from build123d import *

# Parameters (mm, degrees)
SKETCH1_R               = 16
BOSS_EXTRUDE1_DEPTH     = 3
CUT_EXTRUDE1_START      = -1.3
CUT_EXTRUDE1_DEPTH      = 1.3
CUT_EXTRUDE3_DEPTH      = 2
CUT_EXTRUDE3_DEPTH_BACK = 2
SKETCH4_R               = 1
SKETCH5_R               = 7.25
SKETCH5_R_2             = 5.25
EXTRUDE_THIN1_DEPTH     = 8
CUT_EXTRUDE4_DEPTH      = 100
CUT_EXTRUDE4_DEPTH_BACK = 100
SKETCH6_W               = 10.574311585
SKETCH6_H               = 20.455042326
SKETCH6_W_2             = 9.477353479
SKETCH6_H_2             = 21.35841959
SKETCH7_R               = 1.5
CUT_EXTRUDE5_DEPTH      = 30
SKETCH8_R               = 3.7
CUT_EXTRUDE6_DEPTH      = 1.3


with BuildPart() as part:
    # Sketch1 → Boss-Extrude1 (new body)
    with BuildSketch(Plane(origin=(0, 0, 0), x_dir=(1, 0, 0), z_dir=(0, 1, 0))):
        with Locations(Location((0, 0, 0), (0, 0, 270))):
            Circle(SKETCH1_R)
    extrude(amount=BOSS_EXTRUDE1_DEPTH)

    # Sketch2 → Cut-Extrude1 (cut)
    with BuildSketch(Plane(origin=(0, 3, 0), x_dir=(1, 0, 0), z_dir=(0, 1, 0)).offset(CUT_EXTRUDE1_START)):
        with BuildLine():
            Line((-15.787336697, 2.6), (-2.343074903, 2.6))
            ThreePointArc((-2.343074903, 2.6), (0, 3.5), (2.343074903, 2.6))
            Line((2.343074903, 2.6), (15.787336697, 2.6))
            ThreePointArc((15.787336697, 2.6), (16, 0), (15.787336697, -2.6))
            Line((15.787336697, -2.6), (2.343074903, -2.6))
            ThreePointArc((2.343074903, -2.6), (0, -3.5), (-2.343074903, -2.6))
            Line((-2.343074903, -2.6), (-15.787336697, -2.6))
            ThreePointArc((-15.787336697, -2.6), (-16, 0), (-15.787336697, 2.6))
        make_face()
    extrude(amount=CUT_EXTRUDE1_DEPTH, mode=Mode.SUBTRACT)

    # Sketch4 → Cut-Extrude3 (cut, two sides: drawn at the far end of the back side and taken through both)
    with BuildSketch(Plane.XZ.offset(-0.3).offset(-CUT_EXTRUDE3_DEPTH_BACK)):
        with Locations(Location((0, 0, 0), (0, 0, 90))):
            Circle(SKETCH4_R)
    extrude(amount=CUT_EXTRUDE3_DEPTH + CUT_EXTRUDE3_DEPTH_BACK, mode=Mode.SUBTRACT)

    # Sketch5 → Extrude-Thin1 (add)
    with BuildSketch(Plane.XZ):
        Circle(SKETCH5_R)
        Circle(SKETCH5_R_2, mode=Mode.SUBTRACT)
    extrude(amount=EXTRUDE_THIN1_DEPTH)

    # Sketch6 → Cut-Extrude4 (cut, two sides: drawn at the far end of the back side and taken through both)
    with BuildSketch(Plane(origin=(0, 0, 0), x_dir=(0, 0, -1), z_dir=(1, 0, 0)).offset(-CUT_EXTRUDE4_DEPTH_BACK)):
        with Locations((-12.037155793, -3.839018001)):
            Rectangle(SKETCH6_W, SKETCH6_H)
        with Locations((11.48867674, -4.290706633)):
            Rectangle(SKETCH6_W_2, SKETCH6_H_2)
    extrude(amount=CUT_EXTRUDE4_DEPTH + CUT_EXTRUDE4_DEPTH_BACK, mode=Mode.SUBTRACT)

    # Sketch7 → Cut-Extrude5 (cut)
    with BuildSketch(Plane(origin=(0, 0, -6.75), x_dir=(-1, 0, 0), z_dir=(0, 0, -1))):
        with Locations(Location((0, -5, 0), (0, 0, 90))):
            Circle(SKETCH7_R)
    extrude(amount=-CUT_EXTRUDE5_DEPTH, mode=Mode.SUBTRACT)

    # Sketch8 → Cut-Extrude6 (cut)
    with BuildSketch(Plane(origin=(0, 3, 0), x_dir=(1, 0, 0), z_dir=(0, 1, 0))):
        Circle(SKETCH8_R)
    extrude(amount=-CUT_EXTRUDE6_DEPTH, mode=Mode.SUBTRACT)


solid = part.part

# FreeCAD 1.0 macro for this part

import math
import FreeCAD as App
import Part
import Sketcher


def add_polygon(sketch, points):
    """Adds a closed chain of lines whose ends are joined by coincident constraints."""
    first, n = sketch.GeometryCount, len(points)
    for a, b in zip(points, points[1:] + points[:1]):
        sketch.addGeometry(Part.LineSegment(App.Vector(*a, 0), App.Vector(*b, 0)), False)
    for i in range(n):
        sketch.addConstraint(Sketcher.Constraint("Coincident", first + i, 2, first + (i + 1) % n, 1))

doc = App.newDocument("Part")
body = doc.addObject("PartDesign::Body", "Body")

# Sketch on XZ plane
sketch1 = body.newObject("Sketcher::SketchObject", "Sketch")
sketch1.AttachmentSupport = (doc.getObject("XZ_Plane"), [""])
sketch1.MapMode = "FlatFace"
sketch1.addGeometry(Part.Circle(App.Vector(0, 0, 0), App.Vector(0, 0, 1), 16), False)
sketch1.addConstraint(Sketcher.Constraint("Coincident", 0, 3, -1, 1))
sketch1.addConstraint(Sketcher.Constraint("Diameter", 0, 32.0))
pad1 = body.newObject("PartDesign::Pad", "Pad")
pad1.Profile = sketch1
pad1.Length = 3
pad1.Reversed = True

# Sketch on XZ plane
sketch2 = body.newObject("Sketcher::SketchObject", "Sketch001")
sketch2.AttachmentSupport = (doc.getObject("XZ_Plane"), [""])
sketch2.MapMode = "FlatFace"
sketch2.AttachmentOffset = App.Placement(App.Vector(0, 0, -1.7), App.Rotation())
sketch2.addGeometry(Part.LineSegment(App.Vector(-2.3, -2.6, 0), App.Vector(-15.8, -2.6, 0)), False)
sketch2.addGeometry(Part.ArcOfCircle(Part.Circle(App.Vector(0, 0, 0), App.Vector(0, 0, 1), 16), math.radians(170.65), math.radians(189.35)), False)
sketch2.addGeometry(Part.LineSegment(App.Vector(-15.8, 2.6, 0), App.Vector(-2.3, 2.6, 0)), False)
sketch2.addGeometry(Part.ArcOfCircle(Part.Circle(App.Vector(0, 0, 0), App.Vector(0, 0, 1), 3.5), math.radians(48), math.radians(132)), False)
sketch2.addGeometry(Part.LineSegment(App.Vector(2.3, 2.6, 0), App.Vector(15.8, 2.6, 0)), False)
sketch2.addGeometry(Part.ArcOfCircle(Part.Circle(App.Vector(0, 0, 0), App.Vector(0, 0, 1), 16), math.radians(-9.35), math.radians(9.35)), False)
sketch2.addGeometry(Part.LineSegment(App.Vector(15.8, -2.6, 0), App.Vector(2.3, -2.6, 0)), False)
sketch2.addGeometry(Part.ArcOfCircle(Part.Circle(App.Vector(0, 0, 0), App.Vector(0, 0, 1), 3.5), math.radians(-132), math.radians(-48)), False)
sketch2.addConstraint(Sketcher.Constraint("Coincident", 0, 2, 1, 2))
sketch2.addConstraint(Sketcher.Constraint("Coincident", 1, 1, 2, 1))
sketch2.addConstraint(Sketcher.Constraint("Coincident", 2, 2, 3, 2))
sketch2.addConstraint(Sketcher.Constraint("Coincident", 3, 1, 4, 1))
sketch2.addConstraint(Sketcher.Constraint("Coincident", 4, 2, 5, 2))
sketch2.addConstraint(Sketcher.Constraint("Coincident", 5, 1, 6, 1))
sketch2.addConstraint(Sketcher.Constraint("Coincident", 6, 2, 7, 2))
sketch2.addConstraint(Sketcher.Constraint("Coincident", 7, 1, 0, 1))
sketch2.addConstraint(Sketcher.Constraint("Horizontal", 0))
sketch2.addConstraint(Sketcher.Constraint("Horizontal", 2))
sketch2.addConstraint(Sketcher.Constraint("Horizontal", 4))
sketch2.addConstraint(Sketcher.Constraint("Horizontal", 6))
sketch2.addConstraint(Sketcher.Constraint("Coincident", 1, 3, -1, 1))
sketch2.addConstraint(Sketcher.Constraint("Coincident", 3, 3, -1, 1))
sketch2.addConstraint(Sketcher.Constraint("Coincident", 5, 3, -1, 1))
sketch2.addConstraint(Sketcher.Constraint("Coincident", 7, 3, -1, 1))
sketch2.addConstraint(Sketcher.Constraint("Equal", 1, 5))
sketch2.addConstraint(Sketcher.Constraint("Equal", 3, 7))
sketch2.addConstraint(Sketcher.Constraint("Horizontal", 2, 2, 3, 1))
sketch2.addConstraint(Sketcher.Constraint("Horizontal", 0, 2, 5, 1))
sketch2.addConstraint(Sketcher.Constraint("Vertical", 0, 2, 1, 1))
sketch2.addConstraint(Sketcher.Constraint("Radius", 1, 16.0))
sketch2.addConstraint(Sketcher.Constraint("Radius", 3, 3.5))
sketch2.addConstraint(Sketcher.Constraint("DistanceY", 0, 2, -1, 1, 2.6))
pocket1 = body.newObject("PartDesign::Pocket", "Pocket")
pocket1.Profile = sketch2
pocket1.Length = 1.3

# Sketch on XZ plane
sketch3 = body.newObject("Sketcher::SketchObject", "Sketch002")
sketch3.AttachmentSupport = (doc.getObject("XZ_Plane"), [""])
sketch3.MapMode = "FlatFace"
sketch3.AttachmentOffset = App.Placement(App.Vector(0, 0, -0.3), App.Rotation())
sketch3.addGeometry(Part.Circle(App.Vector(0, 0, 0), App.Vector(0, 0, 1), 1), False)
sketch3.addConstraint(Sketcher.Constraint("Coincident", 0, 3, -1, 1))
sketch3.addConstraint(Sketcher.Constraint("Diameter", 0, 2.0))
pocket2 = body.newObject("PartDesign::Pocket", "Pocket001")
pocket2.Profile = sketch3
pocket2.Type = "ThroughAll"
pocket2.Midplane = True

# Sketch on XZ plane
sketch4 = body.newObject("Sketcher::SketchObject", "Sketch003")
sketch4.AttachmentSupport = (doc.getObject("XZ_Plane"), [""])
sketch4.MapMode = "FlatFace"
sketch4.addGeometry(Part.Circle(App.Vector(0, 0, 0), App.Vector(0, 0, 1), 7), False)
sketch4.addGeometry(Part.Circle(App.Vector(0, 0, 0), App.Vector(0, 0, 1), 5), False)
sketch4.addConstraint(Sketcher.Constraint("Coincident", 0, 3, -1, 1))
sketch4.addConstraint(Sketcher.Constraint("Coincident", 1, 3, -1, 1))
sketch4.addConstraint(Sketcher.Constraint("Diameter", 0, 14.5))
sketch4.addConstraint(Sketcher.Constraint("Diameter", 1, 10.5))
pad2 = body.newObject("PartDesign::Pad", "Pad001")
pad2.Profile = sketch4
pad2.Length = 8

# Sketch on YZ plane
sketch5 = body.newObject("Sketcher::SketchObject", "Sketch004")
sketch5.AttachmentSupport = (doc.getObject("YZ_Plane"), [""])
sketch5.MapMode = "FlatFace"
add_polygon(sketch5, [(6, 17), (-14, 17), (-14, 7), (6, 7)])  # lines 0-3
add_polygon(sketch5, [(6, -7), (-15, -7), (-15, -16), (6, -16)])  # lines 4-7
sketch5.addConstraint(Sketcher.Constraint("Horizontal", 0))
sketch5.addConstraint(Sketcher.Constraint("Vertical", 1))
sketch5.addConstraint(Sketcher.Constraint("Horizontal", 2))
sketch5.addConstraint(Sketcher.Constraint("Vertical", 3))
sketch5.addConstraint(Sketcher.Constraint("Horizontal", 4))
sketch5.addConstraint(Sketcher.Constraint("Vertical", 5))
sketch5.addConstraint(Sketcher.Constraint("Horizontal", 6))
sketch5.addConstraint(Sketcher.Constraint("Vertical", 7))
sketch5.addConstraint(Sketcher.Constraint("Symmetric", 2, 2, 7, 2, -1))
sketch5.addConstraint(Sketcher.Constraint("DistanceY", 4, 2, 1, 2, 13.5))
sketch5.addConstraint(Sketcher.Constraint("DistanceX", 4, 2, 4, 1, 21.35842))
sketch5.addConstraint(Sketcher.Constraint("DistanceY", 1, 2, 1, 1, 10.574312))
sketch5.addConstraint(Sketcher.Constraint("DistanceX", 0, 2, 0, 1, 20.455042))
sketch5.addConstraint(Sketcher.Constraint("DistanceY", 5, 2, 5, 1, 9.477353))
sketch5.addConstraint(Sketcher.Constraint("DistanceX", 0, 2, -1, 1, 14.066539))
pocket3 = body.newObject("PartDesign::Pocket", "Pocket002")
pocket3.Profile = sketch5
pocket3.Type = "ThroughAll"
pocket3.Midplane = True

# Sketch on XY plane
sketch6 = body.newObject("Sketcher::SketchObject", "Sketch005")
sketch6.AttachmentSupport = (doc.getObject("XY_Plane"), [""])
sketch6.MapMode = "FlatFace"
sketch6.AttachmentOffset = App.Placement(App.Vector(0, 0, -6.75), App.Rotation())
sketch6.addGeometry(Part.Circle(App.Vector(0, -5, 0), App.Vector(0, 0, 1), 1.5), False)
sketch6.addConstraint(Sketcher.Constraint("PointOnObject", 0, 3, -2))
sketch6.addConstraint(Sketcher.Constraint("Diameter", 0, 3.0))
sketch6.addConstraint(Sketcher.Constraint("DistanceY", 0, 3, -1, 1, 5.0))
pocket4 = body.newObject("PartDesign::Pocket", "Pocket003")
pocket4.Profile = sketch6
pocket4.Length = 30
pocket4.Reversed = True

# Sketch on XZ plane
sketch7 = body.newObject("Sketcher::SketchObject", "Sketch006")
sketch7.AttachmentSupport = (doc.getObject("XZ_Plane"), [""])
sketch7.MapMode = "FlatFace"
sketch7.AttachmentOffset = App.Placement(App.Vector(0, 0, -3), App.Rotation())
sketch7.addGeometry(Part.Circle(App.Vector(0, 0, 0), App.Vector(0, 0, 1), 3.7), False)
sketch7.addConstraint(Sketcher.Constraint("Coincident", 0, 3, -1, 1))
sketch7.addConstraint(Sketcher.Constraint("Diameter", 0, 7.4))
pocket5 = body.newObject("PartDesign::Pocket", "Pocket004")
pocket5.Profile = sketch7
pocket5.Length = 1.3
pocket5.Reversed = True

doc.recompute()
